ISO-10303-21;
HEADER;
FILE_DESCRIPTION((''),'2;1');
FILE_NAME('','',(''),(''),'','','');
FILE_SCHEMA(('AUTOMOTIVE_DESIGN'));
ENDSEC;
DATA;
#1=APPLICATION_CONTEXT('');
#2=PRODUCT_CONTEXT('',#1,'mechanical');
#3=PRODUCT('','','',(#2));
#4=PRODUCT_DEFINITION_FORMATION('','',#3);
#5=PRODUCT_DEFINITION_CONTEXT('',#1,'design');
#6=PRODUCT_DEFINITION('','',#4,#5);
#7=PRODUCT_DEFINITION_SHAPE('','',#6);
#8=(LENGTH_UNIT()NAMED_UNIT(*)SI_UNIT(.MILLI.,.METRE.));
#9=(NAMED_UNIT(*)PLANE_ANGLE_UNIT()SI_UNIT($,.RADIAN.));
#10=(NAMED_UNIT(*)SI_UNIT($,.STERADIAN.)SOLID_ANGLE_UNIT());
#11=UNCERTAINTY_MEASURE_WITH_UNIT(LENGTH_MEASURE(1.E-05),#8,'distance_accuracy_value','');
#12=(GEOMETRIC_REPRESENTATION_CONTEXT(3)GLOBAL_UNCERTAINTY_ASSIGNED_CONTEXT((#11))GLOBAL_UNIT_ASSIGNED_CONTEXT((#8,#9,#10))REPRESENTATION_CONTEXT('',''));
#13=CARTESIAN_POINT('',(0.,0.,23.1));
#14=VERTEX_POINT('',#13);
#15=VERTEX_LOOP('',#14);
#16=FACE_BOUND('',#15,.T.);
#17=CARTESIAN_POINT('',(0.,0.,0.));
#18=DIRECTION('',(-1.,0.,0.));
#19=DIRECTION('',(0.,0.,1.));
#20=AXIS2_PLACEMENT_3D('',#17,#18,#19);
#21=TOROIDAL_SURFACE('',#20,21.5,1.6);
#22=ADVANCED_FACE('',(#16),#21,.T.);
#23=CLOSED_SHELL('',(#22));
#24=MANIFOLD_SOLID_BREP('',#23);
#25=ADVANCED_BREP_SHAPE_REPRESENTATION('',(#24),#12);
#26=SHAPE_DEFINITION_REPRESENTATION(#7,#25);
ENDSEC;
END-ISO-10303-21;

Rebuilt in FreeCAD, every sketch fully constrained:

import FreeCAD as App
import Part
import Sketcher
Q = App.Units.Quantity

doc = App.newDocument("Part")
params = doc.addObject("Spreadsheet::Sheet", "Params")
for row, (alias, value) in enumerate([
    ("sketch1_diameter", "3.2 mm"),
    ("revolution_angle", "360 deg"),
], start=1):
    params.set(f"A{row}", alias)
    params.set(f"B{row}", "=" + value)
    params.setAlias(f"B{row}", alias)

body = doc.addObject("PartDesign::Body", "Body")

sketch1 = doc.addObject("Sketcher::SketchObject", "Sketch")
body.addObject(sketch1)
sketch1.AttachmentSupport = (doc.XY_Plane, [""])
sketch1.MapMode = "FlatFace"
sketch1.addGeometry(Part.Circle(App.Vector(0, 21.5, 0), App.Vector(0, 0, 1), 1.6), False)
sketch1.addConstraint(Sketcher.Constraint("PointOnObject", 0, 3, -2))
sketch1.addConstraint(Sketcher.Constraint("Diameter", 0, Q("3.2 mm")))
sketch1.addConstraint(Sketcher.Constraint("DistanceY", -1, 1, 0, 3, Q("21.5 mm")))
sketch1.setExpression("Constraints[1]", "Params.sketch1_diameter")
revolution = doc.addObject("PartDesign::Revolution", "Revolution")
body.addObject(revolution)
revolution.Profile = sketch1
revolution.ReferenceAxis = (sketch1, ["H_Axis"])
revolution.setExpression("Angle", "Params.revolution_angle")

doc.recompute()
